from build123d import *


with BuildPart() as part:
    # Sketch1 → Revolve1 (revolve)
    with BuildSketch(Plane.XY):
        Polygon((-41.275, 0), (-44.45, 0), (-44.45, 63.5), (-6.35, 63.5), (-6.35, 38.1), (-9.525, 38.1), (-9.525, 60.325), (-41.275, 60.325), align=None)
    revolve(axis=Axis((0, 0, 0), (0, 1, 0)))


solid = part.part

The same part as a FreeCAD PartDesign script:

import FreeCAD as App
import Part
import Sketcher

V = App.Vector
Q = App.Units.Quantity

doc = App.newDocument("Part")
params = doc.addObject("Spreadsheet::Sheet", "Params")
for row, (alias, value) in enumerate([
    ("sketch1_height", "1 in"),
    ("sketch1_width", "1.5 in"),
    ("sketch1_height2", "2.5 in"),
    ("sketch1_width2", "1.25 in"),
    ("sketch1_height3", "2.375 in"),
    ("revolution_angle", "360 deg"),
], start=1):
    params.set(f"A{row}", alias)
    params.set(f"B{row}", "=" + value)
    params.setAlias(f"B{row}", alias)

body = doc.addObject("PartDesign::Body", "Body")

sketch1 = body.newObject("Sketcher::SketchObject", "Sketch")
sketch1.AttachmentSupport = (doc.getObject("XY_Plane"), [""])
sketch1.MapMode = "FlatFace"
sketch1.addGeometry([
    Part.LineSegment(V(-44.5, 0, 0), V(-41.3, 0, 0)),
    Part.LineSegment(V(-41.3, 0, 0), V(-41.3, 60.3, 0)),
    Part.LineSegment(V(-41.3, 60.3, 0), V(-9.5, 60.3, 0)),
    Part.LineSegment(V(-9.5, 60.3, 0), V(-9.5, 38.1, 0)),
    Part.LineSegment(V(-9.5, 38.1, 0), V(-6.3, 38.1, 0)),
    Part.LineSegment(V(-6.3, 38.1, 0), V(-6.3, 63.5, 0)),
    Part.LineSegment(V(-6.3, 63.5, 0), V(-44.5, 63.5, 0)),
    Part.LineSegment(V(-44.5, 63.5, 0), V(-44.5, 0, 0)),
], False)
sketch1.addConstraint([
    Sketcher.Constraint("Coincident", 0, 2, 1, 1),
    Sketcher.Constraint("Coincident", 1, 2, 2, 1),
    Sketcher.Constraint("Coincident", 2, 2, 3, 1),
    Sketcher.Constraint("Coincident", 3, 2, 4, 1),
    Sketcher.Constraint("Coincident", 4, 2, 5, 1),
    Sketcher.Constraint("Coincident", 5, 2, 6, 1),
    Sketcher.Constraint("Coincident", 6, 2, 7, 1),
    Sketcher.Constraint("Coincident", 7, 2, 0, 1),
    Sketcher.Constraint("Horizontal", 0),
    Sketcher.Constraint("Vertical", 1),
    Sketcher.Constraint("Horizontal", 2),
    Sketcher.Constraint("Vertical", 3),
    Sketcher.Constraint("Horizontal", 4),
    Sketcher.Constraint("Vertical", 5),
    Sketcher.Constraint("Horizontal", 6),
    Sketcher.Constraint("Vertical", 7),
    Sketcher.Constraint("PointOnObject", 0, 2, -1),
    Sketcher.Constraint("Equal", 0, 4),
    Sketcher.Constraint("DistanceY", 5, 1, 5, 2, Q("1 in")),
    Sketcher.Constraint("DistanceX", 6, 2, 6, 1, Q("1.5 in")),
    Sketcher.Constraint("DistanceY", 7, 2, 7, 1, Q("2.5 in")),
    Sketcher.Constraint("DistanceX", 2, 1, 2, 2, Q("1.25 in")),
    Sketcher.Constraint("DistanceY", 1, 1, 1, 2, Q("2.375 in")),
    Sketcher.Constraint("DistanceX", 4, 2, -1, 1, Q("0.25 in")),
])
sketch1.setExpression("Constraints[18]", "Params.sketch1_height")
sketch1.setExpression("Constraints[19]", "Params.sketch1_width")
sketch1.setExpression("Constraints[20]", "Params.sketch1_height2")
sketch1.setExpression("Constraints[21]", "Params.sketch1_width2")
sketch1.setExpression("Constraints[22]", "Params.sketch1_height3")
revolution = body.newObject("PartDesign::Revolution", "Revolution")
revolution.Profile = sketch1
revolution.ReferenceAxis = (sketch1, ["V_Axis"])
revolution.setExpression("Angle", "Params.revolution_angle")

doc.recompute()
